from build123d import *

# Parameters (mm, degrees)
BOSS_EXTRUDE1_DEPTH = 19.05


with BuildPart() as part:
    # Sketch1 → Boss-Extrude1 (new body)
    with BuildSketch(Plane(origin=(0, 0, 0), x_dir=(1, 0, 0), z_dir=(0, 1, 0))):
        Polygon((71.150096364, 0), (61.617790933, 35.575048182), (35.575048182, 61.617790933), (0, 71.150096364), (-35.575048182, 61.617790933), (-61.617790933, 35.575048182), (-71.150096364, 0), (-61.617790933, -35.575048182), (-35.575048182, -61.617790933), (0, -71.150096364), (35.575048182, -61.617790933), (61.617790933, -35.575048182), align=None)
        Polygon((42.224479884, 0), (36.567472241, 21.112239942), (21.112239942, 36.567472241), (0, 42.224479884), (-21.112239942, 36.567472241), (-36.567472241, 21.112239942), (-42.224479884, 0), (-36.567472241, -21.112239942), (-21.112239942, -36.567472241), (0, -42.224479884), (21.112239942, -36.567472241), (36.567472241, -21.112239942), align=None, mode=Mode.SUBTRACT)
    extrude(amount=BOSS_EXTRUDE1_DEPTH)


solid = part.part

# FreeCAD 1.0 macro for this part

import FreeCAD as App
import Part
import Sketcher
from FreeCAD import Vector
Q = App.Units.Quantity


def add_polygon(sketch, points):
    """Adds a closed chain of lines whose ends are joined by coincident constraints."""
    first, n = sketch.GeometryCount, len(points)
    for a, b in zip(points, points[1:] + points[:1]):
        sketch.addGeometry(Part.LineSegment(App.Vector(*a, 0), App.Vector(*b, 0)), False)
    for i in range(n):
        sketch.addConstraint(Sketcher.Constraint("Coincident", first + i, 2, first + (i + 1) % n, 1))

doc = App.newDocument("Part")
body = doc.addObject("PartDesign::Body", "Body")

# Sketch on XZ plane
sketch1 = body.newObject("Sketcher::SketchObject", "Sketch")
sketch1.AttachmentSupport = (doc.getObject("XZ_Plane"), [""])
sketch1.MapMode = "FlatFace"
add_polygon(sketch1, [(71.150096, 0), (61.617791, -35.575048), (35.575048, -61.617791), (0, -71.150096), (-35.575048, -61.617791), (-61.617791, -35.575048), (-71.150096, 0), (-61.617791, 35.575048), (-35.575048, 61.617791), (0, 71.150096), (35.575048, 61.617791), (61.617791, 35.575048)])  # lines 0-11
add_polygon(sketch1, [(36.567472, -21.11224), (42.22448, 0), (36.567472, 21.11224), (21.11224, 36.567472), (0, 42.22448), (-21.11224, 36.567472), (-36.567472, 21.11224), (-42.22448, 0), (-36.567472, -21.11224), (-21.11224, -36.567472), (0, -42.22448), (21.11224, -36.567472)])  # lines 12-23
sketch1.addConstraint(Sketcher.Constraint("Symmetric", 0, 2, 6, 2, -1, 1))
sketch1.addConstraint(Sketcher.Constraint("Symmetric", 1, 2, 7, 2, -1, 1))
sketch1.addConstraint(Sketcher.Constraint("Symmetric", 2, 2, 8, 2, -1, 1))
sketch1.addConstraint(Sketcher.Constraint("Symmetric", 3, 2, 9, 2, -1, 1))
sketch1.addConstraint(Sketcher.Constraint("Symmetric", 4, 2, 10, 2, -1, 1))
sketch1.addConstraint(Sketcher.Constraint("Symmetric", 5, 2, 11, 2, -1, 1))
sketch1.addConstraint(Sketcher.Constraint("Symmetric", 12, 2, 18, 2, -1, 1))
sketch1.addConstraint(Sketcher.Constraint("Symmetric", 13, 2, 19, 2, -1, 1))
sketch1.addConstraint(Sketcher.Constraint("Symmetric", 14, 2, 20, 2, -1, 1))
sketch1.addConstraint(Sketcher.Constraint("Symmetric", 15, 2, 21, 2, -1, 1))
sketch1.addConstraint(Sketcher.Constraint("Symmetric", 16, 2, 22, 2, -1, 1))
sketch1.addConstraint(Sketcher.Constraint("Symmetric", 17, 2, 23, 2, -1, 1))
sketch1.addConstraint(Sketcher.Constraint("Symmetric", 1, 2, 3, 2, -2))
sketch1.addConstraint(Sketcher.Constraint("Symmetric", 0, 2, 4, 2, -2))
sketch1.addConstraint(Sketcher.Constraint("Symmetric", 14, 2, 16, 2, -2))
sketch1.addConstraint(Sketcher.Constraint("Symmetric", 13, 2, 17, 2, -2))
sketch1.addConstraint(Sketcher.Constraint("PointOnObject", 2, 2, -2))
sketch1.addConstraint(Sketcher.Constraint("PointOnObject", 5, 2, -1))
sketch1.addConstraint(Sketcher.Constraint("PointOnObject", 12, 2, -1))
sketch1.addConstraint(Sketcher.Constraint("PointOnObject", 15, 2, -2))
sketch1.addConstraint(Sketcher.Constraint("Perpendicular", 0, 3))
sketch1.addConstraint(Sketcher.Constraint("Perpendicular", 1, 4))
sketch1.addConstraint(Sketcher.Constraint("Perpendicular", 9, 12))
sketch1.addConstraint(Sketcher.Constraint("Parallel", 10, 14))
sketch1.addConstraint(Sketcher.Constraint("Perpendicular", 12, 15))
sketch1.addConstraint(Sketcher.Constraint("Equal", 0, 1))
sketch1.addConstraint(Sketcher.Constraint("Equal", 1, 2))
sketch1.addConstraint(Sketcher.Constraint("Equal", 13, 14))
sketch1.addConstraint(Sketcher.Constraint("Equal", 14, 15))
sketch1.addConstraint(Sketcher.Constraint("Angle", 0, Q("-105 deg")))
sketch1.addConstraint(Sketcher.Constraint("Distance", 0, Q("1.45 in")))
sketch1.addConstraint(Sketcher.Constraint("Distance", 12, 21.856999))
pad1 = body.newObject("PartDesign::Pad", "Pad")
pad1.Profile = sketch1
pad1.Length = Q("0.75 in")
pad1.Reversed = True

doc.recompute()
